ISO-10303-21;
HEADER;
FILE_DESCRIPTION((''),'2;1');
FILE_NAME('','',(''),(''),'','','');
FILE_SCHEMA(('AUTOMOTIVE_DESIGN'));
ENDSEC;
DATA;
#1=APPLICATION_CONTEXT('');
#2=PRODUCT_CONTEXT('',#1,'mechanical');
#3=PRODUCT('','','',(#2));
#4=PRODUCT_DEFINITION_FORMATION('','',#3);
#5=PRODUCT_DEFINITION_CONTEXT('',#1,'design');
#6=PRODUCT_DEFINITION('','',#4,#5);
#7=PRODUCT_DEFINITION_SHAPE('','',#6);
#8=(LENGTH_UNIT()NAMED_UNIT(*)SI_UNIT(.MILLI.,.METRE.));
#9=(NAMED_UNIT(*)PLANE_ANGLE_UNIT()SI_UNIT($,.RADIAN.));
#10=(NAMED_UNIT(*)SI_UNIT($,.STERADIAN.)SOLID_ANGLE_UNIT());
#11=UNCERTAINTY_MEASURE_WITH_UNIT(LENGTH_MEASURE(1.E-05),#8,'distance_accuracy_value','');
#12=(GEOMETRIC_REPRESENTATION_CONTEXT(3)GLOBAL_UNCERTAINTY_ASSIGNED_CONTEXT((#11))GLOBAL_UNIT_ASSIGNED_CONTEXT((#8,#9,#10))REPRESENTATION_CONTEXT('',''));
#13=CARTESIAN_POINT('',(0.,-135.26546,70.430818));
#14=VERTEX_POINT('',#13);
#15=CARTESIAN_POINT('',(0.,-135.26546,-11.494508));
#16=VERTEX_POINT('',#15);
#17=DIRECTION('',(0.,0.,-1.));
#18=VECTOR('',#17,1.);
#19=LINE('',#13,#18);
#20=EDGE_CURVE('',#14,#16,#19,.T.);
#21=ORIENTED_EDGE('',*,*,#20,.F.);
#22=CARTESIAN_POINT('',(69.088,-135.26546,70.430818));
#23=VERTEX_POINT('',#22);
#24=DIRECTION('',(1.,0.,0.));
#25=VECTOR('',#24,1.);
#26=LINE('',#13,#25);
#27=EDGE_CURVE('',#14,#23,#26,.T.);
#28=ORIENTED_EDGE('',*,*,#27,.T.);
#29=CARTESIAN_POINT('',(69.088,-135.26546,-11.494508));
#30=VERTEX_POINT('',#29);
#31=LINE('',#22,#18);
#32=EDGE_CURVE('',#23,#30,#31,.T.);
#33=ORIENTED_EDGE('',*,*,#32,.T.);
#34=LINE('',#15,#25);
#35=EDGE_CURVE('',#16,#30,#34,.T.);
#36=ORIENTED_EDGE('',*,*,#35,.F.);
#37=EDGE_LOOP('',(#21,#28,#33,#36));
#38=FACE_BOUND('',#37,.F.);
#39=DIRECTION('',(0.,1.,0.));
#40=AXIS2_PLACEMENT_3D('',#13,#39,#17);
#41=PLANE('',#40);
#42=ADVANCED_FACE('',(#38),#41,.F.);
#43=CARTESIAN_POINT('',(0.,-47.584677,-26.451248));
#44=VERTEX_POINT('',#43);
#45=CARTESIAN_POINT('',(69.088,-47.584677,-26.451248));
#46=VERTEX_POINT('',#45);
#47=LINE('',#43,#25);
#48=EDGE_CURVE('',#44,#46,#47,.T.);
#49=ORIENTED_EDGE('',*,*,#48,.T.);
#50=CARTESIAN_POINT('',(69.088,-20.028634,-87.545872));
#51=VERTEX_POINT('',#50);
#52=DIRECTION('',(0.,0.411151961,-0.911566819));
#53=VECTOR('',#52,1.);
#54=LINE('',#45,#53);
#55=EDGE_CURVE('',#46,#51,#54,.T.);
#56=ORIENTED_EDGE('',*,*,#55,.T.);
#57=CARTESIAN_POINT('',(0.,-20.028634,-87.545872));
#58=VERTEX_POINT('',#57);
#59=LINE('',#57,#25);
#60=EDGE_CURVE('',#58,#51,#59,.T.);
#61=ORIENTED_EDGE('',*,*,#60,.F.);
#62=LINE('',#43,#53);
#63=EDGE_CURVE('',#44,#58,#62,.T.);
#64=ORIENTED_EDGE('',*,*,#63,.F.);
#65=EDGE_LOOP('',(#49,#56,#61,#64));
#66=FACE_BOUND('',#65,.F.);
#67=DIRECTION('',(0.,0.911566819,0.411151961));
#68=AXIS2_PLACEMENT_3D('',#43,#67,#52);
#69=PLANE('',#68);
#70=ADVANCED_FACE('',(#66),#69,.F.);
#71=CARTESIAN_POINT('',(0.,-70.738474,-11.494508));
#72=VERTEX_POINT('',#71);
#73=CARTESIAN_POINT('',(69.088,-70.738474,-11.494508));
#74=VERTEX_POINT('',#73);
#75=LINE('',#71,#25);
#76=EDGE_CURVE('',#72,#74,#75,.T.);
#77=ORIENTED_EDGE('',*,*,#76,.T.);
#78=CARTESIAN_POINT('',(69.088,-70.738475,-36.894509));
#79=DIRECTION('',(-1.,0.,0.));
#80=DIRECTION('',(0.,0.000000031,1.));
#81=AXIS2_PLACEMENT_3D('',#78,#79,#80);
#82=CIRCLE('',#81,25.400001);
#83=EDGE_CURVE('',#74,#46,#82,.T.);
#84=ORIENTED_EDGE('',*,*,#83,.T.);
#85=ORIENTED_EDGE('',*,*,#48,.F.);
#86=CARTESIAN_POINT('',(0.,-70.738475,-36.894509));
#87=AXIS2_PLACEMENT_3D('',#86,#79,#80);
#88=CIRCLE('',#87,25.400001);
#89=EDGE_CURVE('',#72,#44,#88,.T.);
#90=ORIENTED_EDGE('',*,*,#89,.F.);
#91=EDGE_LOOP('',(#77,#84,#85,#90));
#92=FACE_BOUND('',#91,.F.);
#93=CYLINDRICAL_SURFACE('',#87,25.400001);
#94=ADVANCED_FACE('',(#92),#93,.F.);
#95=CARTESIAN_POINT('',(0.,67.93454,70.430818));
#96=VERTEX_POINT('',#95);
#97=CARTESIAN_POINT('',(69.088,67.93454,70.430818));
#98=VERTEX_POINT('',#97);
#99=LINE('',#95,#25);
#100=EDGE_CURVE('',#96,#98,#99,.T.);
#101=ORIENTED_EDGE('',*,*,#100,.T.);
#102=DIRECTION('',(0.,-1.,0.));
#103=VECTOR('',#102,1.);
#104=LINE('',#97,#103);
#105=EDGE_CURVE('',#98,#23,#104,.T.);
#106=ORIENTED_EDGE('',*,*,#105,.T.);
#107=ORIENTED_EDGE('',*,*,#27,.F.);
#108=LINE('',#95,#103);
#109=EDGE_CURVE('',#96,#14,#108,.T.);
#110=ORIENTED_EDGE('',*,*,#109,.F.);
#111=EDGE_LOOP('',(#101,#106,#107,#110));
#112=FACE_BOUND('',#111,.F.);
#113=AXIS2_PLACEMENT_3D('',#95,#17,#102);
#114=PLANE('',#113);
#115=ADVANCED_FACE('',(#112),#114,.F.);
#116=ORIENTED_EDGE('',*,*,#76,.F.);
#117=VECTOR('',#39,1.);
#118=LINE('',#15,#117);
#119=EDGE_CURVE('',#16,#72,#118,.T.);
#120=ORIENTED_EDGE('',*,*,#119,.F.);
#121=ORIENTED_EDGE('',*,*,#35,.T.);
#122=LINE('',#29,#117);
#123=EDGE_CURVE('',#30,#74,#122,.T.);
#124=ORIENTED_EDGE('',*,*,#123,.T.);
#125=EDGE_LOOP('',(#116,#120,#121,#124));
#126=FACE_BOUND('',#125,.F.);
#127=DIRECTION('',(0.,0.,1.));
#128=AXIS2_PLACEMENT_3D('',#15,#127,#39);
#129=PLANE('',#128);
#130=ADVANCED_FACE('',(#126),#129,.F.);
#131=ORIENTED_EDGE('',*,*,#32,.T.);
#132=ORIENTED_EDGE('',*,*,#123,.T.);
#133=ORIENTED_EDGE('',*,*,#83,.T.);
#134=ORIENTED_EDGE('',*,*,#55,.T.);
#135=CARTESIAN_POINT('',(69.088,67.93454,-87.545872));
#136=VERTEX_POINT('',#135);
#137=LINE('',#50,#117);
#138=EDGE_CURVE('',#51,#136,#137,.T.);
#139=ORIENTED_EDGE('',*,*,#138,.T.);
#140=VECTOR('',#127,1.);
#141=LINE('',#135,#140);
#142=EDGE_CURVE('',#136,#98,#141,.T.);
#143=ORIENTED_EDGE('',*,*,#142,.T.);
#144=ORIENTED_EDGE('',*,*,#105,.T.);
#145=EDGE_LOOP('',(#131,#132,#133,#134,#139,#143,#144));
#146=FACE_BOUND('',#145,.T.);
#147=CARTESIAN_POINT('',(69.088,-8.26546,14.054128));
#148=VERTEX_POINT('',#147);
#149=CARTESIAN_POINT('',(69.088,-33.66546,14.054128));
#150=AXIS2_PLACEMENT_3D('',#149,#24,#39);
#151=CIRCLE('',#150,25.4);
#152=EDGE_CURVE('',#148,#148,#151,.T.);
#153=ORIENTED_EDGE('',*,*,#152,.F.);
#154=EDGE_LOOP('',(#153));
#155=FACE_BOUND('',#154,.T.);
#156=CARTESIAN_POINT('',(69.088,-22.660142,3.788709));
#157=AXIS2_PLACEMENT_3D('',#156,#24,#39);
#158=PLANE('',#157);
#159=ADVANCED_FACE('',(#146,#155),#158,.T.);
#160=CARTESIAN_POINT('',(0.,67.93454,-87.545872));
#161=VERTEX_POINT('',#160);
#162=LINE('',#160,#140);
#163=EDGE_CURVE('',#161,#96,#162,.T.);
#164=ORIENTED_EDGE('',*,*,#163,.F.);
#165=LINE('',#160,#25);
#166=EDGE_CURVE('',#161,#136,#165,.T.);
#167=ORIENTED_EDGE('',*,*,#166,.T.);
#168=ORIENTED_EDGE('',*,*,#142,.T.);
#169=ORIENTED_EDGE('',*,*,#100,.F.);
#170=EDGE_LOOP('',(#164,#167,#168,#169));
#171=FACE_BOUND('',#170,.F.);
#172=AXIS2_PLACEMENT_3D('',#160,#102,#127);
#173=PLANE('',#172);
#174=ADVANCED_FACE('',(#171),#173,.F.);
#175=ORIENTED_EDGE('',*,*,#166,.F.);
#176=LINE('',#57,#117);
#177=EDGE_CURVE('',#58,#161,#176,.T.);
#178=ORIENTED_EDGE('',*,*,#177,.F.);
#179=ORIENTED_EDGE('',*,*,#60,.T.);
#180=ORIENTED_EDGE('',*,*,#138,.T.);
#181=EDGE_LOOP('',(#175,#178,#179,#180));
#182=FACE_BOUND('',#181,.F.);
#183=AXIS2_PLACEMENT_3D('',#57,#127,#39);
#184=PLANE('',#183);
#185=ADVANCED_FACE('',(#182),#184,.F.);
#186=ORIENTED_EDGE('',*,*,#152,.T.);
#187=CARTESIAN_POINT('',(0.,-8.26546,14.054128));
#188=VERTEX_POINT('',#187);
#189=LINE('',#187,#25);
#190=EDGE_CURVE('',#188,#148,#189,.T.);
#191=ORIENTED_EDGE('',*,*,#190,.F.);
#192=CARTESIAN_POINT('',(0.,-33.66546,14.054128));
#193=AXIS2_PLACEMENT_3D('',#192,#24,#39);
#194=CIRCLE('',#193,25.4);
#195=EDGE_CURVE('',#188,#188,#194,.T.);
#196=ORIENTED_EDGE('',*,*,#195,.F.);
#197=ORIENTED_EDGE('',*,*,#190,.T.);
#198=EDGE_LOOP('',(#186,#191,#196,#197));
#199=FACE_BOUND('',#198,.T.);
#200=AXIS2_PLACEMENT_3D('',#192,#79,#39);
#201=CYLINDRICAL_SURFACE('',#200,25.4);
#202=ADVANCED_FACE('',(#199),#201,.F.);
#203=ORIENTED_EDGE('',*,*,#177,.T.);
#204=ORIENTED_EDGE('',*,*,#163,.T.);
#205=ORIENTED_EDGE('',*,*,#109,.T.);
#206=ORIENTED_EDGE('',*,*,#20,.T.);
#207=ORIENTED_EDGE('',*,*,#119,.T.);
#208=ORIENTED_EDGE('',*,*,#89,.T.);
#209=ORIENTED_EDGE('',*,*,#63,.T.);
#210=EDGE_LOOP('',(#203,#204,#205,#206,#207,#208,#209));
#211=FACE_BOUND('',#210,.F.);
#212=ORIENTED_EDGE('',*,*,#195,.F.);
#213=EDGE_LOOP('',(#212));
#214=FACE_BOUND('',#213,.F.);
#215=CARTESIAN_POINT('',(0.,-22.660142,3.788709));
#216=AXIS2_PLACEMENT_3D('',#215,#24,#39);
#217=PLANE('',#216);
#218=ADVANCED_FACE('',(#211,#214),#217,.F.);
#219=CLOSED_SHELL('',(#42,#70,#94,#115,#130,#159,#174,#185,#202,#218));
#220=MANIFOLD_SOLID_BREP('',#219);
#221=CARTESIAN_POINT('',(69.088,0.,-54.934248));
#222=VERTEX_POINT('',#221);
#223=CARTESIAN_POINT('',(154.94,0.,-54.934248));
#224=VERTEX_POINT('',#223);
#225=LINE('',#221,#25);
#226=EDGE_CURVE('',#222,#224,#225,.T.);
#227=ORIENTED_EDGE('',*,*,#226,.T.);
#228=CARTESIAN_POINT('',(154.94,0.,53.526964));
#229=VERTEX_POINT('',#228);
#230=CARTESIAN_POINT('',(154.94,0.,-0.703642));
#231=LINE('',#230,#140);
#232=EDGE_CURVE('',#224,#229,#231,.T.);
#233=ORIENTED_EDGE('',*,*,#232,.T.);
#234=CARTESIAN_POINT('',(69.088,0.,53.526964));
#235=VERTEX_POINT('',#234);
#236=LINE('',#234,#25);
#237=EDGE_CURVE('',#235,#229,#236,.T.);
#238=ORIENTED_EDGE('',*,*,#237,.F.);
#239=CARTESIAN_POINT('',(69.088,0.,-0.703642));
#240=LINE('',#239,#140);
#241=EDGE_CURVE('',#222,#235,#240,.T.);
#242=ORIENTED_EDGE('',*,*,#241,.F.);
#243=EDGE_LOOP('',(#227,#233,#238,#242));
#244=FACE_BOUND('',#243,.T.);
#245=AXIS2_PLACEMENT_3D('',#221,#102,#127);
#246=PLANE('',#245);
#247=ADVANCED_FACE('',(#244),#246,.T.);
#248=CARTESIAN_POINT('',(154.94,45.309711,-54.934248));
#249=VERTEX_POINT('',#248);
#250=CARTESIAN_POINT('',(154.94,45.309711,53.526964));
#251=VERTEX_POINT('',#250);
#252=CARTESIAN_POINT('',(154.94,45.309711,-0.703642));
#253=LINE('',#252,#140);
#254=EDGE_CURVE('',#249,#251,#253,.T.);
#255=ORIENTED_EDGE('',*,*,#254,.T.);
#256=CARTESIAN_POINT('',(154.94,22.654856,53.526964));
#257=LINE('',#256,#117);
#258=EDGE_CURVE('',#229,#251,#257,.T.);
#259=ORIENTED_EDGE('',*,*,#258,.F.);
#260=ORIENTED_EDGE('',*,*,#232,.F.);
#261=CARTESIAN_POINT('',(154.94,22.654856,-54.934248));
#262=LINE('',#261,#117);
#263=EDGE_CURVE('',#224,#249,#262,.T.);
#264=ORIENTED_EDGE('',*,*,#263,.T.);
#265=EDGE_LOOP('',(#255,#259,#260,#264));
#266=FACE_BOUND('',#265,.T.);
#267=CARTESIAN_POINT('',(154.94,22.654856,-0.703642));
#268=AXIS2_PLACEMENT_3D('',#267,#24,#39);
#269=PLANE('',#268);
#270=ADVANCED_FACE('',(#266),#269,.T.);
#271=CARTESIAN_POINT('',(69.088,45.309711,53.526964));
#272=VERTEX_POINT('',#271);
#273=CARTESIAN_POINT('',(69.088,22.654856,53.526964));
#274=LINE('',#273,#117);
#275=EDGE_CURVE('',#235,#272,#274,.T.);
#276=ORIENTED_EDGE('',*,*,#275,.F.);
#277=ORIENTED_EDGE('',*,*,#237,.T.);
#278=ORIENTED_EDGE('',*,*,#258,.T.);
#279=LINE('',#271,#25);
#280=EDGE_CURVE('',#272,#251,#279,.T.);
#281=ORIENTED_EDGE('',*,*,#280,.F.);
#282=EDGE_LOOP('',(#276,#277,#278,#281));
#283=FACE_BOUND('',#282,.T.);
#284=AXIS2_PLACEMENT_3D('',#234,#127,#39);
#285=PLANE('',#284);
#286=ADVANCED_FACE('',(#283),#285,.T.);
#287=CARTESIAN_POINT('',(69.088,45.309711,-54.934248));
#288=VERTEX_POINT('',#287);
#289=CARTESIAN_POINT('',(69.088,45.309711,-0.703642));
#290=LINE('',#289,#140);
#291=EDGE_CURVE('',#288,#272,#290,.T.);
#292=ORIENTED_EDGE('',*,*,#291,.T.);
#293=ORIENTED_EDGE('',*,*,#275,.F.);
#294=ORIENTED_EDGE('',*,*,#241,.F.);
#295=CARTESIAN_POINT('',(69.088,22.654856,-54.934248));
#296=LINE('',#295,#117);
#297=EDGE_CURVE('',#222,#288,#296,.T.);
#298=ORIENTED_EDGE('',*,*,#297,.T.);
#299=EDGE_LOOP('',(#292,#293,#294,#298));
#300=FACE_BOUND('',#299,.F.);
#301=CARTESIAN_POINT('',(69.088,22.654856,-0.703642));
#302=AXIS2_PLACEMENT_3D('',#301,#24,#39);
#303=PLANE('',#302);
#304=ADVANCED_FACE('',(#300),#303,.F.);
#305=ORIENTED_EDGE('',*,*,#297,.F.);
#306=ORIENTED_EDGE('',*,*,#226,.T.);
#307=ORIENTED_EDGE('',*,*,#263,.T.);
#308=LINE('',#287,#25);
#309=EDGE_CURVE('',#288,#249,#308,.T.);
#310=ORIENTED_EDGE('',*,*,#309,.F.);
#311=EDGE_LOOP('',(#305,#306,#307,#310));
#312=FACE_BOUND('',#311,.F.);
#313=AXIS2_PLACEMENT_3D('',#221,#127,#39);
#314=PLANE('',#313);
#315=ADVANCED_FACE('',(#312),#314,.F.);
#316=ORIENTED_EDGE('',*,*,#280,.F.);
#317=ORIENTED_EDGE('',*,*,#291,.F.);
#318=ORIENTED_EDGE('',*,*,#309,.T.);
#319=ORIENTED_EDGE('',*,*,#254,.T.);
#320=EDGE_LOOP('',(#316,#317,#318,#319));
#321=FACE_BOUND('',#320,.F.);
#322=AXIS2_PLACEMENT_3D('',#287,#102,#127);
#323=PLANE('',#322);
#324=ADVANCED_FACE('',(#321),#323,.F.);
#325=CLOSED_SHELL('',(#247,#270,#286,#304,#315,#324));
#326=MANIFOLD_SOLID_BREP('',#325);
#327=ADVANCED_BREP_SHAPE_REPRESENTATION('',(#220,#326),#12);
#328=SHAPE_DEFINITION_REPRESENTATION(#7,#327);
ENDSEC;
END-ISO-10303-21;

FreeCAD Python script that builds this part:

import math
import FreeCAD as App
import Part
import Sketcher

V = App.Vector
Q = App.Units.Quantity

doc = App.newDocument("Part")
params = doc.addObject("Spreadsheet::Sheet", "Params")
for row, (alias, value) in enumerate([
    ("sketch1_diameter", "2 in"),
    ("sketch1_width", "8 in"),
    ("pad1_length", "2.72 in"),
    ("pad2_length", "3.38 in"),
], start=1):
    params.set(f"A{row}", alias)
    params.set(f"B{row}", "=" + value)
    params.setAlias(f"B{row}", alias)

body = doc.addObject("PartDesign::Body", "Body")

# Sketch on YZ plane
sketch1 = body.newObject("Sketcher::SketchObject", "Sketch")
sketch1.AttachmentSupport = (doc.getObject("YZ_Plane"), [""])
sketch1.MapMode = "FlatFace"
sketch1.addGeometry([
    Part.LineSegment(V(-135, -11, 0), V(-71, -11, 0)),  # 0
    Part.ArcOfCircle(Part.Circle(V(-71, -37, 0), V(0, 0, 1), 25), math.radians(24), math.radians(90)),  # 1
    Part.LineSegment(V(-48, -26, 0), V(-20, -88, 0)),  # 2
    Part.LineSegment(V(-20, -88, 0), V(68, -88, 0)),  # 3
    Part.LineSegment(V(68, -88, 0), V(68, 70, 0)),  # 4
    Part.LineSegment(V(68, 70, 0), V(-135, 70, 0)),  # 5
    Part.LineSegment(V(-135, 70, 0), V(-135, -11, 0)),  # 6
    Part.Circle(V(-34, 14, 0), V(0, 0, 1), 25),  # 7
], False)
sketch1.addConstraint([
    Sketcher.Constraint("Tangent", 0, 2, 1, 2),
    Sketcher.Constraint("Tangent", 1, 1, 2, 1),
    Sketcher.Constraint("Coincident", 2, 2, 3, 1),
    Sketcher.Constraint("Coincident", 3, 2, 4, 1),
    Sketcher.Constraint("Coincident", 4, 2, 5, 1),
    Sketcher.Constraint("Coincident", 5, 2, 6, 1),
    Sketcher.Constraint("Coincident", 6, 2, 0, 1),
    Sketcher.Constraint("Horizontal", 0),
    Sketcher.Constraint("Horizontal", 3),
    Sketcher.Constraint("Vertical", 4),
    Sketcher.Constraint("Horizontal", 5),
    Sketcher.Constraint("Vertical", 6),
    Sketcher.Constraint("Equal", 1, 7),
    Sketcher.Constraint("Diameter", 7, Q("2 in")),
    Sketcher.Constraint("DistanceX", 5, 2, 5, 1, Q("8 in")),
    Sketcher.Constraint("DistanceY", 2, 2, 7, 3, Q("4 in")),
    Sketcher.Constraint("DistanceX", 7, 3, 3, 2, Q("4 in")),
    Sketcher.Constraint("DistanceY", 1, 1, 7, 3, Q("1.5946998 in")),
    Sketcher.Constraint("DistanceY", 4, 1, 4, 2, Q("157.97669 mm")),
    Sketcher.Constraint("DistanceX", 0, 1, 0, 2, Q("64.526986 mm")),
    Sketcher.Constraint("DistanceX", 3, 1, 3, 2, Q("87.963174 mm")),
    Sketcher.Constraint("DistanceY", 1, 3, -1, 1, Q("36.894509 mm")),
    Sketcher.Constraint("DistanceX", 7, 3, -1, 1, Q("33.66546 mm")),
])
sketch1.setExpression("Constraints[13]", "Params.sketch1_diameter")
sketch1.setExpression("Constraints[14]", "Params.sketch1_width")
pad1 = body.newObject("PartDesign::Pad", "Pad")
pad1.Profile = sketch1
pad1.setExpression("Length", "Params.pad1_length")
body2 = doc.addObject("PartDesign::Body", "Body001")

# Sketch on YZ plane
sketch2 = body2.newObject("Sketcher::SketchObject", "Sketch001")
sketch2.AttachmentSupport = (doc.getObject("YZ_Plane001"), [""])
sketch2.MapMode = "FlatFace"
sketch2.AttachmentOffset = App.Placement(V(0, 0, 2.72 * 25.4), App.Rotation())
sketch2.addGeometry([
    Part.LineSegment(V(0, 54, 0), V(0, -55, 0)),
    Part.LineSegment(V(0, -55, 0), V(45, -55, 0)),
    Part.LineSegment(V(45, -55, 0), V(45, 54, 0)),
    Part.LineSegment(V(45, 54, 0), V(0, 54, 0)),
], False)
sketch2.addConstraint([
    Sketcher.Constraint("Coincident", 0, 2, 1, 1),
    Sketcher.Constraint("Coincident", 1, 2, 2, 1),
    Sketcher.Constraint("Coincident", 2, 2, 3, 1),
    Sketcher.Constraint("Coincident", 3, 2, 0, 1),
    Sketcher.Constraint("Vertical", 0),
    Sketcher.Constraint("Horizontal", 1),
    Sketcher.Constraint("Vertical", 2),
    Sketcher.Constraint("Horizontal", 3),
    Sketcher.Constraint("PointOnObject", 0, 2, -2),
    Sketcher.Constraint("DistanceX", 1, 1, 1, 2, Q("45.309711 mm")),
    Sketcher.Constraint("DistanceY", 0, 2, 0, 1, Q("108.461212 mm")),
    Sketcher.Constraint("DistanceY", 0, 2, -1, 1, Q("54.934248 mm")),
])
pad2 = body2.newObject("PartDesign::Pad", "Pad001")
pad2.Profile = sketch2
pad2.setExpression("Length", "Params.pad2_length")

doc.recompute()
